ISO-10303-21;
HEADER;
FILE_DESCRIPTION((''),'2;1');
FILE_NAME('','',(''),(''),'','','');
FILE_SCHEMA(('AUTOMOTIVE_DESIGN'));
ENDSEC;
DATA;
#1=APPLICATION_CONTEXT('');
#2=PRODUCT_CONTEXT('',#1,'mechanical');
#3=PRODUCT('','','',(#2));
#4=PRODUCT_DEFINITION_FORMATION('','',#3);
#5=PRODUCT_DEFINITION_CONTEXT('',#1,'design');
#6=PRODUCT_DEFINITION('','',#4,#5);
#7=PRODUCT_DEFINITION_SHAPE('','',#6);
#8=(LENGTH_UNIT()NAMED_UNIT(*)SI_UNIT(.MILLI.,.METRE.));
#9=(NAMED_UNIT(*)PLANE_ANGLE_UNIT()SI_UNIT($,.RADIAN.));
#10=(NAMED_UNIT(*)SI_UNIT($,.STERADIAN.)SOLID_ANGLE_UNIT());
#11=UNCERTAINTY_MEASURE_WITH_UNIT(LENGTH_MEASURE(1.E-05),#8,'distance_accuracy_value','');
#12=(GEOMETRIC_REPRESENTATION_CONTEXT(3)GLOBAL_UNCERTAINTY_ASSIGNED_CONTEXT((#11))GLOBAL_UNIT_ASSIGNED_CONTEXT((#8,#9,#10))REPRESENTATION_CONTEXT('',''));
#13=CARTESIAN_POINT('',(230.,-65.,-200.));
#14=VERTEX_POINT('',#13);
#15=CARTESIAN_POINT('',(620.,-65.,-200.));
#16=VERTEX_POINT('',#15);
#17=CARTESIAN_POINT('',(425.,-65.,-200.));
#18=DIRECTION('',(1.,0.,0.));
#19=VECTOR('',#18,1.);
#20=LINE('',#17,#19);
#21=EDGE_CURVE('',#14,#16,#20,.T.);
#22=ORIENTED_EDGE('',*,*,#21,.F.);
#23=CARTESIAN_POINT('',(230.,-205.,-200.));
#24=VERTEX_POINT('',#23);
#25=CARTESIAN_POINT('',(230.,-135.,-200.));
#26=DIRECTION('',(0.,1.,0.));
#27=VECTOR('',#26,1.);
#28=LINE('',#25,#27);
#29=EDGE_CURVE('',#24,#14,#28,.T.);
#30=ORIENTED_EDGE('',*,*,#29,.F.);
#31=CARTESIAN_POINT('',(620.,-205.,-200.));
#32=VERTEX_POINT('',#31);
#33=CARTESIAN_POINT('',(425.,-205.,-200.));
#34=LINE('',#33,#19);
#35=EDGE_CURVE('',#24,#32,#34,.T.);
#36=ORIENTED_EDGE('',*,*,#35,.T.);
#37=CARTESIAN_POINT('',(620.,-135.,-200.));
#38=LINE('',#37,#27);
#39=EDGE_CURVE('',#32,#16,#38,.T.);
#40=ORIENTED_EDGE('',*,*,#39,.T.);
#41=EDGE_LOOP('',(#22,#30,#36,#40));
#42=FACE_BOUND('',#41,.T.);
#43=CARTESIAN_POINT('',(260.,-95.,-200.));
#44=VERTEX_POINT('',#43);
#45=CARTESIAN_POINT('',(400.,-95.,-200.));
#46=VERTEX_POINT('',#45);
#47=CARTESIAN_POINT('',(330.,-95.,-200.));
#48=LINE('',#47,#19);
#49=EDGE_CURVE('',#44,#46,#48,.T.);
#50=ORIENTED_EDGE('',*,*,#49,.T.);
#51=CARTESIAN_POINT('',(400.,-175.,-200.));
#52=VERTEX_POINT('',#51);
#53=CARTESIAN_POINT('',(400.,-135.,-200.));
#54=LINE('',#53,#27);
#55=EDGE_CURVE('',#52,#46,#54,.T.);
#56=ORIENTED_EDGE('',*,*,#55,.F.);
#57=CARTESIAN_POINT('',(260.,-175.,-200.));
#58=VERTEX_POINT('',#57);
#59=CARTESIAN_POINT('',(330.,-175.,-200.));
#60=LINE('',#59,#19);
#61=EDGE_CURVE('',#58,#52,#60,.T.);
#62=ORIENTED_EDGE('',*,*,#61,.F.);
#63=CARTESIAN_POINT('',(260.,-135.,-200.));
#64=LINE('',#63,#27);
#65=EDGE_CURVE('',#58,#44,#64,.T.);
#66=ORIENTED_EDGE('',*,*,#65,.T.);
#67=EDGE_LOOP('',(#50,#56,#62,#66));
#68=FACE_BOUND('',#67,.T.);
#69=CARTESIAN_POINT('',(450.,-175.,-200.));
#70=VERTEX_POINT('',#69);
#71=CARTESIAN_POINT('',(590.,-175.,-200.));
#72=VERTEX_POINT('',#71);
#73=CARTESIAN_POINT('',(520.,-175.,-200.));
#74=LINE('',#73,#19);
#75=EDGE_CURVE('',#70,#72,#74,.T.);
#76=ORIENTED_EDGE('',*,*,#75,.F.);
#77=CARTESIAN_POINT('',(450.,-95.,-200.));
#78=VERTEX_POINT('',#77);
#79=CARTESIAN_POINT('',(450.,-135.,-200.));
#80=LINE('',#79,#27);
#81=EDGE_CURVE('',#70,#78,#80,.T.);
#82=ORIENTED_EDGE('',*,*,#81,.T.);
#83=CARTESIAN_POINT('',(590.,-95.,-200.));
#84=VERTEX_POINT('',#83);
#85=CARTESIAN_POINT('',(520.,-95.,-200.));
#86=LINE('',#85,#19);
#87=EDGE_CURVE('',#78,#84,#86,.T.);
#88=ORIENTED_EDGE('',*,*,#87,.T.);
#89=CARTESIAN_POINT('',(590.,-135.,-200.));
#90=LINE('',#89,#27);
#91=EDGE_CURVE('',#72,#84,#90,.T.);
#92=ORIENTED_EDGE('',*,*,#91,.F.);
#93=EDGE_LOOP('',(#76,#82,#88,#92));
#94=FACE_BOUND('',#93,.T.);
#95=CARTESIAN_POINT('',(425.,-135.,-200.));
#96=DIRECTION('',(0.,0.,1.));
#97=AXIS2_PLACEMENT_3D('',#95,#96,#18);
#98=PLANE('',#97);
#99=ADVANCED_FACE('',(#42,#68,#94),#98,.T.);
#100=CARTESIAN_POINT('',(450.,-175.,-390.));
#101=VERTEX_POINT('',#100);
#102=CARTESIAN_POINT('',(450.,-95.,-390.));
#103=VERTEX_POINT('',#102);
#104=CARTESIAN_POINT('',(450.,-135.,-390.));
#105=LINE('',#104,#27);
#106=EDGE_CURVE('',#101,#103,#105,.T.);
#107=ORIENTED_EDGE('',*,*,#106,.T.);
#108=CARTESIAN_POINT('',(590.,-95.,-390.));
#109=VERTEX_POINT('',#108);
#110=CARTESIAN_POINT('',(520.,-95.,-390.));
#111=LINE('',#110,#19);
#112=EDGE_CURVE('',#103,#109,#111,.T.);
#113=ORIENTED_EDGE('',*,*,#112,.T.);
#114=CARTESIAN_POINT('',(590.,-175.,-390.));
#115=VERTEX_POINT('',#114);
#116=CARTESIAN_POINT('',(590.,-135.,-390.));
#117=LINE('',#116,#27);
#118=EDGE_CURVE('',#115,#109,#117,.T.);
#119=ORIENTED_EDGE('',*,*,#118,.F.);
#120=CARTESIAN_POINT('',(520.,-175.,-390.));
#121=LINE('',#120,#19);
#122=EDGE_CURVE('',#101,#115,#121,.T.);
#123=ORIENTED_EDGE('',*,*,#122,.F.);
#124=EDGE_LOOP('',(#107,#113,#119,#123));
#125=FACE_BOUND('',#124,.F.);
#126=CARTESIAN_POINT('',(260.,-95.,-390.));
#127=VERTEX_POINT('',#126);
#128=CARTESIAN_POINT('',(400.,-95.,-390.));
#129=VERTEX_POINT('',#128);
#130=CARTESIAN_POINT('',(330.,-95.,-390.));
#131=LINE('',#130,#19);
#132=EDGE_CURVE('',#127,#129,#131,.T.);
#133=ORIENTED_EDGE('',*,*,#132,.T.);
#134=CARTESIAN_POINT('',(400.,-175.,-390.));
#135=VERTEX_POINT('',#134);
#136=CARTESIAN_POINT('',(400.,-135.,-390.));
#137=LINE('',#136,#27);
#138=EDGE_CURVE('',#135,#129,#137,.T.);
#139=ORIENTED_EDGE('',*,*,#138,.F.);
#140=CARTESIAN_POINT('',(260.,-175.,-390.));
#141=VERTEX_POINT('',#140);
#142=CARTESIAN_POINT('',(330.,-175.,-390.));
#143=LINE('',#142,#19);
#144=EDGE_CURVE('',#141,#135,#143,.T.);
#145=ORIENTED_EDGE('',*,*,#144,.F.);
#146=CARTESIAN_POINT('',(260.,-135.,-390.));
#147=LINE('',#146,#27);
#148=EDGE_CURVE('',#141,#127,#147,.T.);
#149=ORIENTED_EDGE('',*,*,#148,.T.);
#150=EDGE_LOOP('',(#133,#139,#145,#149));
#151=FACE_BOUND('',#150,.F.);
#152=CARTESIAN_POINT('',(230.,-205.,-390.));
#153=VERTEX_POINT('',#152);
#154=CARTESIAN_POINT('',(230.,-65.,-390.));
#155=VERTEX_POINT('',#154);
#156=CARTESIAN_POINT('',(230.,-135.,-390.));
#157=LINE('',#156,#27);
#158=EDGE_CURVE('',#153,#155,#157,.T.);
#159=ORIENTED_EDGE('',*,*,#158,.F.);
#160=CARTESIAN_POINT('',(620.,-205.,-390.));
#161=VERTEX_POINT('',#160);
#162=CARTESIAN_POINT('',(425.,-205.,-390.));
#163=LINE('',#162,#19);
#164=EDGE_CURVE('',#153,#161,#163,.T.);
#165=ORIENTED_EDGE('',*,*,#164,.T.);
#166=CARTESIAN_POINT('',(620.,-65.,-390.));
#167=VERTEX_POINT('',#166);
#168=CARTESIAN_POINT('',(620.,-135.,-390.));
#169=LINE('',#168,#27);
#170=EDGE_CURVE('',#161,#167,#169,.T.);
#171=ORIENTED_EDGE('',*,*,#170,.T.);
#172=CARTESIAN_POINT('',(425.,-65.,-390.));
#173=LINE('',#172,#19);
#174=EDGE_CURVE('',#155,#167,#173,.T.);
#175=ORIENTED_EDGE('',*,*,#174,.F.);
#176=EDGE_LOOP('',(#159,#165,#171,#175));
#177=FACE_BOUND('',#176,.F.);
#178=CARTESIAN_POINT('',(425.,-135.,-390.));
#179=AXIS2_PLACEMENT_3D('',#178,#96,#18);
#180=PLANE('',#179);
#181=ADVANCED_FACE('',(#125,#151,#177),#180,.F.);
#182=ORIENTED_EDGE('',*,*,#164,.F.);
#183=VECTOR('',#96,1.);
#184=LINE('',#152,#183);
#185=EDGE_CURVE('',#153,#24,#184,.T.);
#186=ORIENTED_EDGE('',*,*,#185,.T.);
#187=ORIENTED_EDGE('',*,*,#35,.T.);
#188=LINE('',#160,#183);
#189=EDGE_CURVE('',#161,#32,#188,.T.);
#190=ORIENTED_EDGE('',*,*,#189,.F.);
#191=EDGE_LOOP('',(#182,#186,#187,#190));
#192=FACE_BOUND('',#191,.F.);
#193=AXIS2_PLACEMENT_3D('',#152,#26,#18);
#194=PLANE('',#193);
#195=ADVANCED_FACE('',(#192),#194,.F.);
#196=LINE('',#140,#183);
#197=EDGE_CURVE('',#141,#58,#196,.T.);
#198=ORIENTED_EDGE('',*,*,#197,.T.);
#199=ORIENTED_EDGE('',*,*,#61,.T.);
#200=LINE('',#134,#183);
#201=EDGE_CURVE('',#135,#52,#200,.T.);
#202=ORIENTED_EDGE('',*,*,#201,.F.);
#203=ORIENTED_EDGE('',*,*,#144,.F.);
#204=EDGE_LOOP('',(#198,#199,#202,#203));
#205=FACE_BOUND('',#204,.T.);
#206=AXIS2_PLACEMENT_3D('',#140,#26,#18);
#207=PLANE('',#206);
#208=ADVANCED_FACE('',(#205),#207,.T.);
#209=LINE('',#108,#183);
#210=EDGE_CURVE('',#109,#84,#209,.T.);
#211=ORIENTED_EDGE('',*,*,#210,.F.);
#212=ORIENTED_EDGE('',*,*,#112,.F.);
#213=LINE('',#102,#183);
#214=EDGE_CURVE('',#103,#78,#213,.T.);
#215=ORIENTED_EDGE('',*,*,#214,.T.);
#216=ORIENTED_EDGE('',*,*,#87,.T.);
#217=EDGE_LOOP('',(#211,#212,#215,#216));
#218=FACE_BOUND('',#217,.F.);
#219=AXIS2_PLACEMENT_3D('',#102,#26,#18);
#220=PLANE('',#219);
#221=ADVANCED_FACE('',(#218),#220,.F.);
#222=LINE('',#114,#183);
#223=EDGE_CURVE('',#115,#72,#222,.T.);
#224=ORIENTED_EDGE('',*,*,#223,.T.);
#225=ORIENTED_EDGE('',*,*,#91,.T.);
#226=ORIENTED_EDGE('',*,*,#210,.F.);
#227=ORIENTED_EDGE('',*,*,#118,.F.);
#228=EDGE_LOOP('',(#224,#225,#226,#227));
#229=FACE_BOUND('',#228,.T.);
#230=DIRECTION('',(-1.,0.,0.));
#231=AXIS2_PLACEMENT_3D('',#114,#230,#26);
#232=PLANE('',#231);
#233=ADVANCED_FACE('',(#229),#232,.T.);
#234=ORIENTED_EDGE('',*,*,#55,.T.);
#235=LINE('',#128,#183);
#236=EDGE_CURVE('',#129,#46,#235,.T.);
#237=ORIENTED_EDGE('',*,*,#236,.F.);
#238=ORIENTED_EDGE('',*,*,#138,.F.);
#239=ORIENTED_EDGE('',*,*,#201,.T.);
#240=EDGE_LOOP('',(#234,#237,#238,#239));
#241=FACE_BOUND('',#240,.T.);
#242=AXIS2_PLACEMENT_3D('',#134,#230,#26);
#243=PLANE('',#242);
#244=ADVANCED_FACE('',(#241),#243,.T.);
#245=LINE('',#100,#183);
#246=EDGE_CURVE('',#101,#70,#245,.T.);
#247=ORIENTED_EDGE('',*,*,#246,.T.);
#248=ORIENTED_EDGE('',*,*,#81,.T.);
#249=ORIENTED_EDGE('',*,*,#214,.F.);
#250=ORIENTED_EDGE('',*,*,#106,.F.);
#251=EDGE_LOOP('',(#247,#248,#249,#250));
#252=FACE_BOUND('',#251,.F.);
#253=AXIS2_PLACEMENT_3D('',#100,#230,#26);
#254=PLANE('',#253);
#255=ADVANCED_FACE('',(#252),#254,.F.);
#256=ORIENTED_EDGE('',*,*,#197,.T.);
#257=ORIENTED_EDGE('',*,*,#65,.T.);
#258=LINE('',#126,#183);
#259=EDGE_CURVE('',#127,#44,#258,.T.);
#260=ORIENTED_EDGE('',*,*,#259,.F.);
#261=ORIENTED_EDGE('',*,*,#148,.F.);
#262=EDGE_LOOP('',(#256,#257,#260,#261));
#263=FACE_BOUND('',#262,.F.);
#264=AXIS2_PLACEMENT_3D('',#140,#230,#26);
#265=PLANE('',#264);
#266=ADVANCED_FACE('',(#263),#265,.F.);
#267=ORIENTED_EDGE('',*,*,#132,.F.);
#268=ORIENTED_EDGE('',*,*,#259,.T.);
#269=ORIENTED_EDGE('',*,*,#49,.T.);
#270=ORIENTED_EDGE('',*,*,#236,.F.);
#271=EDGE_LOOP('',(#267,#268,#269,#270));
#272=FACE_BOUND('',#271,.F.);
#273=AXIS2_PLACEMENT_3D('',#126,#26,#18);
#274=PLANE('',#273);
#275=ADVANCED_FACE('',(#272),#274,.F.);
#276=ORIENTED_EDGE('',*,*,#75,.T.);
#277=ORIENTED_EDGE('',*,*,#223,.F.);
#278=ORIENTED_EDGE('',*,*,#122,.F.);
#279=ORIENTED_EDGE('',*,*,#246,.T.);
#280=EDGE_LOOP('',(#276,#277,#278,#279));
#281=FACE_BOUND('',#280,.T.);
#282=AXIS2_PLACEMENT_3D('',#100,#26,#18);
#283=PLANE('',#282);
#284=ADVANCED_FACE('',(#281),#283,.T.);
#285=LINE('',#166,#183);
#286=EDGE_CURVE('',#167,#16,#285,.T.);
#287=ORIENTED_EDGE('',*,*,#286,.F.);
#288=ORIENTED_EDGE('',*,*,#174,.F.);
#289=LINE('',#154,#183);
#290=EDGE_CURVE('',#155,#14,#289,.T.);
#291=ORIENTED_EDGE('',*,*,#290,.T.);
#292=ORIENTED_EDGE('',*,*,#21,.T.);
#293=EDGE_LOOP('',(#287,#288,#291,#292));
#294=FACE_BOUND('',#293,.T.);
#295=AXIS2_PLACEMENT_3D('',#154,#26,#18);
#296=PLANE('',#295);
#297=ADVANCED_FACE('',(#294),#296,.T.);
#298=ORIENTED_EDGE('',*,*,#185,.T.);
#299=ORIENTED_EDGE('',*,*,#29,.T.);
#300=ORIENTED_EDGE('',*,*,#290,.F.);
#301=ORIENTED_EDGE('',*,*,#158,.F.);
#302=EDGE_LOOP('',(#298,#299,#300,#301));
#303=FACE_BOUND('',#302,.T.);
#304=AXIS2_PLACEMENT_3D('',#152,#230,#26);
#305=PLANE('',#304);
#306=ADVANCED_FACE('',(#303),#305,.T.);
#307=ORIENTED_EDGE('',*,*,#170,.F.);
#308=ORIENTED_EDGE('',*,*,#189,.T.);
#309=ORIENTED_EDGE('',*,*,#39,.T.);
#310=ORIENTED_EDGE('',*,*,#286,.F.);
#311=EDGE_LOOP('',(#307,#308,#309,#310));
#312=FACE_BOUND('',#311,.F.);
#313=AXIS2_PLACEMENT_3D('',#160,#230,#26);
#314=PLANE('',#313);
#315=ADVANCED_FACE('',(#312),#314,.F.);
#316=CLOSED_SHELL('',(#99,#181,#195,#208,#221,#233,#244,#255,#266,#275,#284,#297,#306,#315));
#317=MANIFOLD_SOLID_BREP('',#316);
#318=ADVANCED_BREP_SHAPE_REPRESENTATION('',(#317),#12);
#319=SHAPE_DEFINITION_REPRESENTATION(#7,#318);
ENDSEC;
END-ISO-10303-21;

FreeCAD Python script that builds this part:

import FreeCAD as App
import Part
import Sketcher

doc = App.newDocument("Part")
params = doc.addObject("Spreadsheet::Sheet", "Params")
for row, (alias, value) in enumerate([
    ("sketch1_width", "140 mm"),
    ("sketch1_height", "80 mm"),
    ("pad1_length", "190 mm"),
    ("sketch2_width", "140 mm"),
    ("sketch2_height", "80 mm"),
    ("pad2_length", "190 mm"),
    ("sketch3_width", "390 mm"),
    ("sketch3_height", "140 mm"),
    ("pad3_length", "190 mm"),
], start=1):
    params.set(f"A{row}", alias)
    params.set(f"B{row}", "=" + value)
    params.setAlias(f"B{row}", alias)

body = doc.addObject("PartDesign::Body", "Body")

# Sketch on XY plane
sketch1 = body.newObject("Sketcher::SketchObject", "Sketch")
sketch1.AttachmentSupport = (doc.getObject("XY_Plane"), [""])
sketch1.MapMode = "FlatFace"
sketch1.addGeometry(Part.LineSegment(App.Vector(220, 110, 0), App.Vector(220, 30, 0)), False)
sketch1.addGeometry(Part.LineSegment(App.Vector(220, 30, 0), App.Vector(360, 30, 0)), False)
sketch1.addGeometry(Part.LineSegment(App.Vector(360, 30, 0), App.Vector(360, 110, 0)), False)
sketch1.addGeometry(Part.LineSegment(App.Vector(360, 110, 0), App.Vector(220, 110, 0)), False)
sketch1.addConstraint(Sketcher.Constraint("Coincident", 0, 2, 1, 1))
sketch1.addConstraint(Sketcher.Constraint("Coincident", 1, 2, 2, 1))
sketch1.addConstraint(Sketcher.Constraint("Coincident", 2, 2, 3, 1))
sketch1.addConstraint(Sketcher.Constraint("Coincident", 3, 2, 0, 1))
sketch1.addConstraint(Sketcher.Constraint("Vertical", 0))
sketch1.addConstraint(Sketcher.Constraint("Horizontal", 1))
sketch1.addConstraint(Sketcher.Constraint("Vertical", 2))
sketch1.addConstraint(Sketcher.Constraint("Horizontal", 3))
sketch1.addConstraint(Sketcher.Constraint("DistanceX", 1, 1, 1, 2, 140.0))
sketch1.addConstraint(Sketcher.Constraint("DistanceY", 0, 2, 0, 1, 80.0))
sketch1.addConstraint(Sketcher.Constraint("DistanceX", -1, 1, 0, 2, 220.0))
sketch1.addConstraint(Sketcher.Constraint("DistanceY", -1, 1, 0, 2, 30.0))
sketch1.setExpression("Constraints[8]", "Params.sketch1_width")
sketch1.setExpression("Constraints[9]", "Params.sketch1_height")
pad1 = body.newObject("PartDesign::Pad", "Pad")
pad1.Profile = sketch1
pad1.setExpression("Length", "Params.pad1_length")
body2 = doc.addObject("PartDesign::Body", "Body001")
body2.AllowCompound = True

# Sketch on XY plane
sketch2 = body2.newObject("Sketcher::SketchObject", "Sketch001")
sketch2.AttachmentSupport = (doc.getObject("XY_Plane001"), [""])
sketch2.MapMode = "FlatFace"
sketch2.addGeometry(Part.LineSegment(App.Vector(30, 110, 0), App.Vector(30, 30, 0)), False)
sketch2.addGeometry(Part.LineSegment(App.Vector(30, 30, 0), App.Vector(170, 30, 0)), False)
sketch2.addGeometry(Part.LineSegment(App.Vector(170, 30, 0), App.Vector(170, 110, 0)), False)
sketch2.addGeometry(Part.LineSegment(App.Vector(170, 110, 0), App.Vector(30, 110, 0)), False)
sketch2.addConstraint(Sketcher.Constraint("Coincident", 0, 2, 1, 1))
sketch2.addConstraint(Sketcher.Constraint("Coincident", 1, 2, 2, 1))
sketch2.addConstraint(Sketcher.Constraint("Coincident", 2, 2, 3, 1))
sketch2.addConstraint(Sketcher.Constraint("Coincident", 3, 2, 0, 1))
sketch2.addConstraint(Sketcher.Constraint("Vertical", 0))
sketch2.addConstraint(Sketcher.Constraint("Horizontal", 1))
sketch2.addConstraint(Sketcher.Constraint("Vertical", 2))
sketch2.addConstraint(Sketcher.Constraint("Horizontal", 3))
sketch2.addConstraint(Sketcher.Constraint("DistanceX", 1, 1, 1, 2, 140.0))
sketch2.addConstraint(Sketcher.Constraint("DistanceY", 0, 2, 0, 1, 80.0))
sketch2.addConstraint(Sketcher.Constraint("DistanceX", -1, 1, 0, 2, 30.0))
sketch2.addConstraint(Sketcher.Constraint("DistanceY", -1, 1, 0, 2, 30.0))
sketch2.setExpression("Constraints[8]", "Params.sketch2_width")
sketch2.setExpression("Constraints[9]", "Params.sketch2_height")
pad2 = body2.newObject("PartDesign::Pad", "Pad001")
pad2.Profile = sketch2
pad2.setExpression("Length", "Params.pad2_length")
doc.recompute()

boolean = body2.newObject("PartDesign::Boolean", "Boolean")
boolean.Type = "Fuse"
boolean.addObjects([body])
body3 = doc.addObject("PartDesign::Body", "Body002")

# Sketch on XY plane
sketch3 = body3.newObject("Sketcher::SketchObject", "Sketch002")
sketch3.AttachmentSupport = (doc.getObject("XY_Plane002"), [""])
sketch3.MapMode = "FlatFace"
sketch3.addGeometry(Part.LineSegment(App.Vector(0, 140, 0), App.Vector(0, 0, 0)), False)
sketch3.addGeometry(Part.LineSegment(App.Vector(0, 0, 0), App.Vector(390, 0, 0)), False)
sketch3.addGeometry(Part.LineSegment(App.Vector(390, 0, 0), App.Vector(390, 140, 0)), False)
sketch3.addGeometry(Part.LineSegment(App.Vector(390, 140, 0), App.Vector(0, 140, 0)), False)
sketch3.addConstraint(Sketcher.Constraint("Coincident", 0, 2, 1, 1))
sketch3.addConstraint(Sketcher.Constraint("Coincident", 1, 2, 2, 1))
sketch3.addConstraint(Sketcher.Constraint("Coincident", 2, 2, 3, 1))
sketch3.addConstraint(Sketcher.Constraint("Coincident", 3, 2, 0, 1))
sketch3.addConstraint(Sketcher.Constraint("Vertical", 0))
sketch3.addConstraint(Sketcher.Constraint("Horizontal", 1))
sketch3.addConstraint(Sketcher.Constraint("Vertical", 2))
sketch3.addConstraint(Sketcher.Constraint("Horizontal", 3))
sketch3.addConstraint(Sketcher.Constraint("Coincident", 0, 2, -1, 1))
sketch3.addConstraint(Sketcher.Constraint("DistanceX", 1, 1, 1, 2, 390.0))
sketch3.addConstraint(Sketcher.Constraint("DistanceY", 0, 2, 0, 1, 140.0))
sketch3.setExpression("Constraints[9]", "Params.sketch3_width")
sketch3.setExpression("Constraints[10]", "Params.sketch3_height")
pad3 = body3.newObject("PartDesign::Pad", "Pad002")
pad3.Profile = sketch3
pad3.setExpression("Length", "Params.pad3_length")
doc.recompute()

boolean2 = body3.newObject("PartDesign::Boolean", "Boolean001")
boolean2.Type = "Cut"
boolean2.addObjects([body2])
body4 = doc.addObject("PartDesign::Body", "Body003")
doc.recompute()

body3.Placement = App.Placement(App.Vector(230, -205, -390), App.Rotation(App.Vector(0, 0, 1), 0))
boolean3 = body4.newObject("PartDesign::Boolean", "Boolean002")
boolean3.Type = "Fuse"
boolean3.addObjects([body3])

doc.recompute()
